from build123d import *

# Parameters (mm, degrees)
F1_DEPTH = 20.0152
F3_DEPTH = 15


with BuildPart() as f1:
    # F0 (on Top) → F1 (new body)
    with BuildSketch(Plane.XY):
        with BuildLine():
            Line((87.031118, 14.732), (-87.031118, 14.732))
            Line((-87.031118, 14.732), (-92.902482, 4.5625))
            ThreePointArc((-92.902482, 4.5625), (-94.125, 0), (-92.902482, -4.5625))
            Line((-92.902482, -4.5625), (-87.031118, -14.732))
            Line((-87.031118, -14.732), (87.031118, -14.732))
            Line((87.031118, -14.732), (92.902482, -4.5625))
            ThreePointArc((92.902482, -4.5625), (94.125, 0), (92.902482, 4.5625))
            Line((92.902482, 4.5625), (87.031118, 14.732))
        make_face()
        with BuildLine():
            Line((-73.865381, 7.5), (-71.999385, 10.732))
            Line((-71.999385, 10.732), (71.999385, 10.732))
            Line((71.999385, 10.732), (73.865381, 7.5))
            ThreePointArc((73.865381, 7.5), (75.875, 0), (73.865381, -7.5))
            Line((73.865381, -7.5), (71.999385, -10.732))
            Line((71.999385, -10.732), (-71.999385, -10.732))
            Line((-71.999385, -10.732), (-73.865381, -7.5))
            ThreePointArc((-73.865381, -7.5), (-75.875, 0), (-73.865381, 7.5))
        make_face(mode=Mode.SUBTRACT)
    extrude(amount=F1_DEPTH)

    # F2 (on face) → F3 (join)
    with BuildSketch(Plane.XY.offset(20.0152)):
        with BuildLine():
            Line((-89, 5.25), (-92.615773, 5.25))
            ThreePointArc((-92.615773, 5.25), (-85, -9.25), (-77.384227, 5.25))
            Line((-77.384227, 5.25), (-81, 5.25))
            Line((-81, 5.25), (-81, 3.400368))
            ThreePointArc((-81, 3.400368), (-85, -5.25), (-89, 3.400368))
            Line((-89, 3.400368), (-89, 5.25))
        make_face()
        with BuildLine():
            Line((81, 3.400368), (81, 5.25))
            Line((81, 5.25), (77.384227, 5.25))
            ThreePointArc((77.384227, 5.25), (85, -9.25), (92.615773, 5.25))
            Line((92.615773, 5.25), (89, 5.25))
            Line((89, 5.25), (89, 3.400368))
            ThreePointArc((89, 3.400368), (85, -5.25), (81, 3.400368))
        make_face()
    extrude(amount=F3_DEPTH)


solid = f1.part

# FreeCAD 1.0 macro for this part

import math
import FreeCAD as App
import Part
import Sketcher
from FreeCAD import Vector
Q = App.Units.Quantity

doc = App.newDocument("Part")
params = doc.addObject("Spreadsheet::Sheet", "Params")
for row, (alias, value) in enumerate([
    ("sketch1_radius", "15 mm"),
    ("pad1_length", "20.0152 mm"),
    ("sketch2_radius", "9.25 mm"),
    ("sketch2_radius2", "5.25 mm"),
    ("pad2_length", "15 mm"),
], start=1):
    params.set(f"A{row}", alias)
    params.set(f"B{row}", "=" + value)
    params.setAlias(f"B{row}", alias)

body = doc.addObject("PartDesign::Body", "Body")

sketch1 = body.newObject("Sketcher::SketchObject", "Sketch")
sketch1.AttachmentSupport = (doc.getObject("XY_Plane"), [""])
sketch1.MapMode = "FlatFace"
sketch1.addGeometry(Part.LineSegment(Vector(87.031118, 14.732, 0), Vector(-87.031118, 14.732, 0)), False)
sketch1.addGeometry(Part.LineSegment(Vector(-87.031118, 14.732, 0), Vector(-92.902482, 4.5625, 0)), False)
sketch1.addGeometry(Part.ArcOfCircle(Part.Circle(Vector(-84.999999, 0, 0), Vector(0, 0, 1), 9.125001), math.radians(150.000004), math.radians(209.999996)), False)
sketch1.addGeometry(Part.LineSegment(Vector(-92.902482, -4.5625, 0), Vector(-87.031118, -14.732, 0)), False)
sketch1.addGeometry(Part.LineSegment(Vector(-87.031118, -14.732, 0), Vector(87.031118, -14.732, 0)), False)
sketch1.addGeometry(Part.LineSegment(Vector(87.031118, -14.732, 0), Vector(92.902482, -4.5625, 0)), False)
sketch1.addGeometry(Part.ArcOfCircle(Part.Circle(Vector(84.999999, 0, 0), Vector(0, 0, 1), 9.125001), math.radians(-29.999996), math.radians(29.999996)), False)
sketch1.addGeometry(Part.LineSegment(Vector(92.902482, 4.5625, 0), Vector(87.031118, 14.732, 0)), False)
sketch1.addGeometry(Part.ArcOfCircle(Part.Circle(Vector(-60.875, 0, 0), Vector(0, 0, 1), 15), math.radians(149.999999), math.radians(210.000001)), False)
sketch1.addGeometry(Part.LineSegment(Vector(-73.865381, 7.5, 0), Vector(-71.999385, 10.732, 0)), False)
sketch1.addGeometry(Part.LineSegment(Vector(-71.999385, 10.732, 0), Vector(71.999385, 10.732, 0)), False)
sketch1.addGeometry(Part.LineSegment(Vector(71.999385, 10.732, 0), Vector(73.865381, 7.5, 0)), False)
sketch1.addGeometry(Part.ArcOfCircle(Part.Circle(Vector(60.875, 0, 0), Vector(0, 0, 1), 15), math.radians(-30.000001), math.radians(30.000001)), False)
sketch1.addGeometry(Part.LineSegment(Vector(73.865381, -7.5, 0), Vector(71.999385, -10.732, 0)), False)
sketch1.addGeometry(Part.LineSegment(Vector(71.999385, -10.732, 0), Vector(-71.999385, -10.732, 0)), False)
sketch1.addGeometry(Part.LineSegment(Vector(-71.999385, -10.732, 0), Vector(-73.865381, -7.5, 0)), False)
sketch1.addConstraint(Sketcher.Constraint("Coincident", 0, 2, 1, 1))
sketch1.addConstraint(Sketcher.Constraint("Tangent", 1, 2, 2, 1))
sketch1.addConstraint(Sketcher.Constraint("Tangent", 2, 2, 3, 1))
sketch1.addConstraint(Sketcher.Constraint("Coincident", 3, 2, 4, 1))
sketch1.addConstraint(Sketcher.Constraint("Coincident", 4, 2, 5, 1))
sketch1.addConstraint(Sketcher.Constraint("Tangent", 5, 2, 6, 1))
sketch1.addConstraint(Sketcher.Constraint("Tangent", 6, 2, 7, 1))
sketch1.addConstraint(Sketcher.Constraint("Coincident", 7, 2, 0, 1))
sketch1.addConstraint(Sketcher.Constraint("Tangent", 8, 1, 9, 1))
sketch1.addConstraint(Sketcher.Constraint("Coincident", 9, 2, 10, 1))
sketch1.addConstraint(Sketcher.Constraint("Coincident", 10, 2, 11, 1))
sketch1.addConstraint(Sketcher.Constraint("Tangent", 11, 2, 12, 2))
sketch1.addConstraint(Sketcher.Constraint("Tangent", 12, 1, 13, 1))
sketch1.addConstraint(Sketcher.Constraint("Coincident", 13, 2, 14, 1))
sketch1.addConstraint(Sketcher.Constraint("Coincident", 14, 2, 15, 1))
sketch1.addConstraint(Sketcher.Constraint("Tangent", 15, 2, 8, 2))
sketch1.addConstraint(Sketcher.Constraint("Horizontal", 0))
sketch1.addConstraint(Sketcher.Constraint("Horizontal", 4))
sketch1.addConstraint(Sketcher.Constraint("Horizontal", 10))
sketch1.addConstraint(Sketcher.Constraint("Horizontal", 14))
sketch1.addConstraint(Sketcher.Constraint("Equal", 2, 6))
sketch1.addConstraint(Sketcher.Constraint("Equal", 8, 12))
sketch1.addConstraint(Sketcher.Constraint("Symmetric", 2, 3, 6, 3, -1, 1))
sketch1.addConstraint(Sketcher.Constraint("Symmetric", 8, 3, 12, 3, -1, 1))
sketch1.addConstraint(Sketcher.Constraint("Symmetric", 0, 2, 4, 2, -1, 1))
sketch1.addConstraint(Sketcher.Constraint("Symmetric", 9, 2, 13, 2, -1, 1))
sketch1.addConstraint(Sketcher.Constraint("Symmetric", 2, 2, 5, 2, -2))
sketch1.addConstraint(Sketcher.Constraint("Symmetric", 8, 1, 11, 2, -2))
sketch1.addConstraint(Sketcher.Constraint("Parallel", 3, 7))
sketch1.addConstraint(Sketcher.Constraint("Parallel", 5, 9))
sketch1.addConstraint(Sketcher.Constraint("Parallel", 11, 15))
sketch1.addConstraint(Sketcher.Constraint("Radius", 8, 15.0))
sketch1.addConstraint(Sketcher.Constraint("Angle", 1, Q("-120.000002 deg")))
sketch1.addConstraint(Sketcher.Constraint("DistanceX", 2, 3, -1, 1, 84.999999))
sketch1.addConstraint(Sketcher.Constraint("Radius", 2, 9.125001))
sketch1.addConstraint(Sketcher.Constraint("DistanceY", 9, 2, 0, 2, 4.0))
sketch1.addConstraint(Sketcher.Constraint("DistanceX", 8, 3, 12, 3, 121.750001))
sketch1.addConstraint(Sketcher.Constraint("DistanceY", -1, 1, 0, 2, 14.732))
sketch1.setExpression("Constraints[31]", "Params.sketch1_radius")
pad1 = body.newObject("PartDesign::Pad", "Pad")
pad1.Profile = sketch1
pad1.setExpression("Length", "Params.pad1_length")

sketch2 = body.newObject("Sketcher::SketchObject", "Sketch001")
sketch2.AttachmentSupport = (doc.getObject("XY_Plane"), [""])
sketch2.MapMode = "FlatFace"
sketch2.AttachmentOffset = App.Placement(Vector(0, 0, 20.0152), App.Rotation())
sketch2.addGeometry(Part.LineSegment(Vector(-89, 5.25, 0), Vector(-92.615773, 5.25, 0)), False)
sketch2.addGeometry(Part.ArcOfCircle(Part.Circle(Vector(-85, 0, 0), Vector(0, 0, 1), 9.25), math.radians(145.419221), math.radians(394.580779)), False)
sketch2.addGeometry(Part.LineSegment(Vector(-77.384227, 5.25, 0), Vector(-81, 5.25, 0)), False)
sketch2.addGeometry(Part.LineSegment(Vector(-81, 5.25, 0), Vector(-81, 3.400368, 0)), False)
sketch2.addGeometry(Part.ArcOfCircle(Part.Circle(Vector(-85, 0, 0), Vector(0, 0, 1), 5.25), math.radians(139.632405), math.radians(400.367595)), False)
sketch2.addGeometry(Part.LineSegment(Vector(-89, 3.400368, 0), Vector(-89, 5.25, 0)), False)
sketch2.addGeometry(Part.LineSegment(Vector(81, 3.400368, 0), Vector(81, 5.25, 0)), False)
sketch2.addGeometry(Part.LineSegment(Vector(81, 5.25, 0), Vector(77.384227, 5.25, 0)), False)
sketch2.addGeometry(Part.ArcOfCircle(Part.Circle(Vector(85, 0, 0), Vector(0, 0, 1), 9.25), math.radians(145.419221), math.radians(394.580779)), False)
sketch2.addGeometry(Part.LineSegment(Vector(92.615773, 5.25, 0), Vector(89, 5.25, 0)), False)
sketch2.addGeometry(Part.LineSegment(Vector(89, 5.25, 0), Vector(89, 3.400368, 0)), False)
sketch2.addGeometry(Part.ArcOfCircle(Part.Circle(Vector(85, 0, 0), Vector(0, 0, 1), 5.25), math.radians(139.632405), math.radians(400.367595)), False)
sketch2.addConstraint(Sketcher.Constraint("Coincident", 0, 2, 1, 1))
sketch2.addConstraint(Sketcher.Constraint("Coincident", 1, 2, 2, 1))
sketch2.addConstraint(Sketcher.Constraint("Coincident", 2, 2, 3, 1))
sketch2.addConstraint(Sketcher.Constraint("Coincident", 3, 2, 4, 2))
sketch2.addConstraint(Sketcher.Constraint("Coincident", 4, 1, 5, 1))
sketch2.addConstraint(Sketcher.Constraint("Coincident", 5, 2, 0, 1))
sketch2.addConstraint(Sketcher.Constraint("Coincident", 6, 2, 7, 1))
sketch2.addConstraint(Sketcher.Constraint("Coincident", 7, 2, 8, 1))
sketch2.addConstraint(Sketcher.Constraint("Coincident", 8, 2, 9, 1))
sketch2.addConstraint(Sketcher.Constraint("Coincident", 9, 2, 10, 1))
sketch2.addConstraint(Sketcher.Constraint("Coincident", 10, 2, 11, 2))
sketch2.addConstraint(Sketcher.Constraint("Coincident", 11, 1, 6, 1))
sketch2.addConstraint(Sketcher.Constraint("Horizontal", 0))
sketch2.addConstraint(Sketcher.Constraint("Horizontal", 2))
sketch2.addConstraint(Sketcher.Constraint("Vertical", 3))
sketch2.addConstraint(Sketcher.Constraint("Vertical", 5))
sketch2.addConstraint(Sketcher.Constraint("Vertical", 6))
sketch2.addConstraint(Sketcher.Constraint("Horizontal", 7))
sketch2.addConstraint(Sketcher.Constraint("Horizontal", 9))
sketch2.addConstraint(Sketcher.Constraint("Vertical", 10))
sketch2.addConstraint(Sketcher.Constraint("Coincident", 4, 3, 1, 3))
sketch2.addConstraint(Sketcher.Constraint("Coincident", 11, 3, 8, 3))
sketch2.addConstraint(Sketcher.Constraint("Equal", 1, 8))
sketch2.addConstraint(Sketcher.Constraint("Equal", 4, 11))
sketch2.addConstraint(Sketcher.Constraint("Symmetric", 1, 3, 8, 3, -1, 1))
sketch2.addConstraint(Sketcher.Constraint("Symmetric", 2, 2, 6, 2, -2))
sketch2.addConstraint(Sketcher.Constraint("Symmetric", 0, 2, 8, 2, -2))
sketch2.addConstraint(Sketcher.Constraint("Horizontal", 0, 2, 1, 2))
sketch2.addConstraint(Sketcher.Constraint("Horizontal", 3, 2, 4, 1))
sketch2.addConstraint(Sketcher.Constraint("Horizontal", 4, 1, 10, 2))
sketch2.addConstraint(Sketcher.Constraint("Radius", 1, 9.25))
sketch2.addConstraint(Sketcher.Constraint("Radius", 4, 5.25))
sketch2.addConstraint(Sketcher.Constraint("DistanceX", 1, 3, -1, 1, 85.0))
sketch2.addConstraint(Sketcher.Constraint("DistanceX", 2, 2, -1, 1, 81.0))
sketch2.addConstraint(Sketcher.Constraint("DistanceY", -1, 1, 0, 2, 5.25))
sketch2.setExpression("Constraints[30]", "Params.sketch2_radius")
sketch2.setExpression("Constraints[31]", "Params.sketch2_radius2")
pad2 = body.newObject("PartDesign::Pad", "Pad001")
pad2.Profile = sketch2
pad2.setExpression("Length", "Params.pad2_length")

doc.recompute()
